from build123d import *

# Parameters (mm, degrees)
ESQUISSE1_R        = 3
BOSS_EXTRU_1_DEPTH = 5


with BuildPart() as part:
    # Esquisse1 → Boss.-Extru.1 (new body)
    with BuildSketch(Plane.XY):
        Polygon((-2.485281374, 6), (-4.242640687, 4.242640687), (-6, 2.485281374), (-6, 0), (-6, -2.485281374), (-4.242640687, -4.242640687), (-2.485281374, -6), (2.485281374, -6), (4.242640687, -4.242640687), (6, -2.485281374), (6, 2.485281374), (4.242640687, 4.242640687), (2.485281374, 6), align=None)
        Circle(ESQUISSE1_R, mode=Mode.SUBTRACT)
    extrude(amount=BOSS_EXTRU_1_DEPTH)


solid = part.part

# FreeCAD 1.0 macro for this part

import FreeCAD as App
import Part
import Sketcher

V = App.Vector
Q = App.Units.Quantity

doc = App.newDocument("Part")
body = doc.addObject("PartDesign::Body", "Body")

# Sketch on XY plane
sketch1 = body.newObject("Sketcher::SketchObject", "Sketch")
sketch1.AttachmentSupport = (doc.getObject("XY_Plane"), [""])
sketch1.MapMode = "FlatFace"
sketch1.addGeometry([
    Part.LineSegment(V(-2.5, 6, 0), V(-6, 2.5, 0)),  # 0
    Part.LineSegment(V(-6, 2.5, 0), V(-6, -2.5, 0)),  # 1
    Part.LineSegment(V(-6, -2.5, 0), V(-2.5, -6, 0)),  # 2
    Part.LineSegment(V(-2.5, -6, 0), V(2.5, -6, 0)),  # 3
    Part.LineSegment(V(2.5, -6, 0), V(6, -2.5, 0)),  # 4
    Part.LineSegment(V(6, -2.5, 0), V(6, 2.5, 0)),  # 5
    Part.LineSegment(V(6, 2.5, 0), V(2.5, 6, 0)),  # 6
    Part.LineSegment(V(2.5, 6, 0), V(-2.5, 6, 0)),  # 7
    Part.Circle(V(0, 0, 0), V(0, 0, 1), 3),  # 8
], False)
sketch1.addConstraint([
    Sketcher.Constraint("Coincident", 0, 2, 1, 1),
    Sketcher.Constraint("Coincident", 1, 2, 2, 1),
    Sketcher.Constraint("Coincident", 2, 2, 3, 1),
    Sketcher.Constraint("Coincident", 3, 2, 4, 1),
    Sketcher.Constraint("Coincident", 4, 2, 5, 1),
    Sketcher.Constraint("Coincident", 5, 2, 6, 1),
    Sketcher.Constraint("Coincident", 6, 2, 7, 1),
    Sketcher.Constraint("Coincident", 7, 2, 0, 1),
    Sketcher.Constraint("Vertical", 1),
    Sketcher.Constraint("Horizontal", 3),
    Sketcher.Constraint("Vertical", 5),
    Sketcher.Constraint("Horizontal", 7),
    Sketcher.Constraint("Coincident", 8, 3, -1, 1),
    Sketcher.Constraint("Symmetric", 0, 2, 4, 2, -1, 1),
    Sketcher.Constraint("Symmetric", 2, 2, 6, 2, -1, 1),
    Sketcher.Constraint("Perpendicular", 0, 2),
    Sketcher.Constraint("Perpendicular", 2, 4),
    Sketcher.Constraint("Perpendicular", 4, 6),
    Sketcher.Constraint("Horizontal", 1, 2, 4, 2),
    Sketcher.Constraint("Vertical", 3, 2, 6, 2),
    Sketcher.Constraint("Equal", 7, 1),
    Sketcher.Constraint("Diameter", 8, Q("6 mm")),
    Sketcher.Constraint("DistanceX", 0, 2, -1, 1, Q("6 mm")),
    Sketcher.Constraint("DistanceX", 3, 1, 3, 2, Q("4.970563 mm")),
])
pad1 = body.newObject("PartDesign::Pad", "Pad")
pad1.Profile = sketch1
pad1.Length = 5

doc.recompute()
